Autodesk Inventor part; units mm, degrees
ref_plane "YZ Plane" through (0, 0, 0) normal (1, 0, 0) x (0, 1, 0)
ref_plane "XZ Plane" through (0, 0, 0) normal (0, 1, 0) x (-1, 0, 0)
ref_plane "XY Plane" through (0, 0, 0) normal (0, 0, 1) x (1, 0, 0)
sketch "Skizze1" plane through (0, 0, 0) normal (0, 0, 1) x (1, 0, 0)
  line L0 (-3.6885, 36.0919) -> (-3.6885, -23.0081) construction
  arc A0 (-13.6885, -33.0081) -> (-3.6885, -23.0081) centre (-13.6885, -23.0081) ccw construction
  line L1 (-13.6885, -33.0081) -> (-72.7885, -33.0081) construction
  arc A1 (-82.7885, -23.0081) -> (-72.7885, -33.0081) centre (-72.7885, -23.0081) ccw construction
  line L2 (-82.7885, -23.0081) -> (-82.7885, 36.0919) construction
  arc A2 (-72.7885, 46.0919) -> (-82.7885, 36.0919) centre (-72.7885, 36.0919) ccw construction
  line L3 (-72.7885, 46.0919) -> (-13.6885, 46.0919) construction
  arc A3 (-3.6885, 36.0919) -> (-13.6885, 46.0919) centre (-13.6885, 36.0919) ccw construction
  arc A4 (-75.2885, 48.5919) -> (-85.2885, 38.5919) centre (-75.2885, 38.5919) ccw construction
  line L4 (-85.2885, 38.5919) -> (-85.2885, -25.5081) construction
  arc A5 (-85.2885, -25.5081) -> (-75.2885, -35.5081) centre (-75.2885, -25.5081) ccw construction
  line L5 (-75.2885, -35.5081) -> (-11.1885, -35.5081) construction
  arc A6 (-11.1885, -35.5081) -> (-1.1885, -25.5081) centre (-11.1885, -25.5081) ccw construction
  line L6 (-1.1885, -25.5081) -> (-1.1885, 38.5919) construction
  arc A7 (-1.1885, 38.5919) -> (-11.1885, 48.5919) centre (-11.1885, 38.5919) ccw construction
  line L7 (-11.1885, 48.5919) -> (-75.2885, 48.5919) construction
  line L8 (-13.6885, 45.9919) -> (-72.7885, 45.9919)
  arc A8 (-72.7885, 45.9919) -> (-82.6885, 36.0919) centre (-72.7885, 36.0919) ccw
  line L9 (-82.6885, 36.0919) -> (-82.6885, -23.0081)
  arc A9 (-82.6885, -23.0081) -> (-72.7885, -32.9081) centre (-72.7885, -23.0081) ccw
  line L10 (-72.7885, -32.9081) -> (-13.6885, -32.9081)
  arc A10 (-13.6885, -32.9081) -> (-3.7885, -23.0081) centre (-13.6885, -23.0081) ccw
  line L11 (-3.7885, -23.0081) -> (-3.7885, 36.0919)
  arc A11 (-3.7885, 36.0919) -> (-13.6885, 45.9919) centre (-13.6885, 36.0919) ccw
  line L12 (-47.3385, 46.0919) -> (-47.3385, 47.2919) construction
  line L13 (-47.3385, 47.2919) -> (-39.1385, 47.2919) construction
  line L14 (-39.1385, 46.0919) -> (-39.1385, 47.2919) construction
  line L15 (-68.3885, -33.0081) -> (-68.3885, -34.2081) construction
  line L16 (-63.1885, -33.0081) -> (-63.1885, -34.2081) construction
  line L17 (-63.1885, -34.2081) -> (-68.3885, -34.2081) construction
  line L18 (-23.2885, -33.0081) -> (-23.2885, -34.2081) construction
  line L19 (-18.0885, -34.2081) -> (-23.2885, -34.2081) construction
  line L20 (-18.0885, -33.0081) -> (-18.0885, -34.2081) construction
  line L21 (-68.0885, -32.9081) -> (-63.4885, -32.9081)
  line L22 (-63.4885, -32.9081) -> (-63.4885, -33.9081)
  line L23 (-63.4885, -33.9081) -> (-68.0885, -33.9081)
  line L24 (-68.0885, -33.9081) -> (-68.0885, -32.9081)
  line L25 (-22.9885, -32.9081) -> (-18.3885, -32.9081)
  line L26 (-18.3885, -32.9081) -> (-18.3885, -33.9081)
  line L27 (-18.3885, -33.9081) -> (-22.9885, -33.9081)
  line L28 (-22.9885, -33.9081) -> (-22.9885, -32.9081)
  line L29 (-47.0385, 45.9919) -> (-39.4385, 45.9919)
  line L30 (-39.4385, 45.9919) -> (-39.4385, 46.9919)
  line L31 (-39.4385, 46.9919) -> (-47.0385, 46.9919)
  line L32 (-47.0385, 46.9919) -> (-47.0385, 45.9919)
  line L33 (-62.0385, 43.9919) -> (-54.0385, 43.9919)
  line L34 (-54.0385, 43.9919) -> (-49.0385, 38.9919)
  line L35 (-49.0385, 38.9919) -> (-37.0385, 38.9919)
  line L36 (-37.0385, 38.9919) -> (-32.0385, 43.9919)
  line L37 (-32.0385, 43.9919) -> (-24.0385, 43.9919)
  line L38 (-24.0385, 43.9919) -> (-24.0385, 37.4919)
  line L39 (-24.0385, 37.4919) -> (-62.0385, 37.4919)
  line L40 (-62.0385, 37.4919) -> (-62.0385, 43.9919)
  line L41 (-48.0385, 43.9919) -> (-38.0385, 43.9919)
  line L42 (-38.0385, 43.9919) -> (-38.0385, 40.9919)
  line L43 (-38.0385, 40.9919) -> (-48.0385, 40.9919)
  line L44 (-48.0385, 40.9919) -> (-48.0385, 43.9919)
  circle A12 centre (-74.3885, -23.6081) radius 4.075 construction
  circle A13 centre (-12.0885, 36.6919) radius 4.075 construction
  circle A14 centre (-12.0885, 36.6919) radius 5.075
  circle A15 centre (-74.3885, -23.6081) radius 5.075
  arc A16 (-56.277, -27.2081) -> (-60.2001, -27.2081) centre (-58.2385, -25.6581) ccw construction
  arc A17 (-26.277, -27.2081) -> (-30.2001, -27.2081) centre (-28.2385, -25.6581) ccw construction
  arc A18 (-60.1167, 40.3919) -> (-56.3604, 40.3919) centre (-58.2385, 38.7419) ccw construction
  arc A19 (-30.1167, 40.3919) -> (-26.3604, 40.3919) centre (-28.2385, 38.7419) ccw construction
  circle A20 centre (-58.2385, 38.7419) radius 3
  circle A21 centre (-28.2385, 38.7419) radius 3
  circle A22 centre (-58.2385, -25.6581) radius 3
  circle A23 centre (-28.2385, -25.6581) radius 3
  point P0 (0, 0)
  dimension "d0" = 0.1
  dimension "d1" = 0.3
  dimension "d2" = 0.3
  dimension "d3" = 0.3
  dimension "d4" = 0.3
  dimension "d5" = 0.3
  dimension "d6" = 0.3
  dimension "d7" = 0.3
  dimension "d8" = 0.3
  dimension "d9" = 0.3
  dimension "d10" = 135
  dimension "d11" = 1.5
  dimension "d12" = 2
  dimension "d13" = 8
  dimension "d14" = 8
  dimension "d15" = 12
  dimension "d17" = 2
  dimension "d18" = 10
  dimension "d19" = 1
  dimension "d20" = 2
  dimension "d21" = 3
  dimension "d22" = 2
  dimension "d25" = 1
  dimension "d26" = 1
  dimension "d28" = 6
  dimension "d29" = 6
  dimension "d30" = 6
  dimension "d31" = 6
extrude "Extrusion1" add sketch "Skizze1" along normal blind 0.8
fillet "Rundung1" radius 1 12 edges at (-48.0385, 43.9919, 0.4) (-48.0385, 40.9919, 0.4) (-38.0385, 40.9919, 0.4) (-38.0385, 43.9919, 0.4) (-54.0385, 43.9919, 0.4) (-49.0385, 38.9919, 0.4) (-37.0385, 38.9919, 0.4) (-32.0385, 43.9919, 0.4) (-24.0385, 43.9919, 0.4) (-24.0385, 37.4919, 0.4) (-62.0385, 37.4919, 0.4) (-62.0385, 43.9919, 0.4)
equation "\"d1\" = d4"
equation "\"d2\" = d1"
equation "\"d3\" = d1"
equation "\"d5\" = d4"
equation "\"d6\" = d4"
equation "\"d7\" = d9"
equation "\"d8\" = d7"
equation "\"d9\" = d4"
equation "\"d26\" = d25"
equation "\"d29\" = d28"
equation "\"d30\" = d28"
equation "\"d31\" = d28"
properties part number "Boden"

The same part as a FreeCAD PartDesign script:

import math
import FreeCAD as App
import Part
import Sketcher
from FreeCAD import Vector


def edges_at(feature, points):
    """Names of the edges that pass closest to the given points."""
    edges = feature.Shape.Edges
    near = lambda p: min(range(len(edges)), key=lambda i: edges[i].distToShape(Part.Vertex(*p))[0])
    return sorted({f"Edge{near(p) + 1}" for p in points})


def add_polygon(sketch, points):
    """Adds a closed chain of lines whose ends are joined by coincident constraints."""
    first, n = sketch.GeometryCount, len(points)
    for a, b in zip(points, points[1:] + points[:1]):
        sketch.addGeometry(Part.LineSegment(App.Vector(*a, 0), App.Vector(*b, 0)), False)
    for i in range(n):
        sketch.addConstraint(Sketcher.Constraint("Coincident", first + i, 2, first + (i + 1) % n, 1))

doc = App.newDocument("Part")
params = doc.addObject("Spreadsheet::Sheet", "Params")
for row, (alias, value) in enumerate([
    ("sketch1_diameter", "6 mm"),
    ("sketch1_width", "8 mm"),
    ("sketch1_width2", "12 mm"),
    ("sketch1_width3", "10 mm"),
    ("sketch1_height", "1 mm"),
    ("pad1_length", "0.8 mm"),
    ("fillet_radius", "1 mm"),
], start=1):
    params.set(f"A{row}", alias)
    params.set(f"B{row}", "=" + value)
    params.setAlias(f"B{row}", alias)

body = doc.addObject("PartDesign::Body", "Body")

# Sketch on XY plane
sketch1 = doc.addObject("Sketcher::SketchObject", "Sketch")
body.addObject(sketch1)
sketch1.AttachmentSupport = (doc.XY_Plane, [""])
sketch1.MapMode = "FlatFace"
sketch1.addGeometry(Part.ArcOfCircle(Part.Circle(Vector(-13.7, 36.1, 0), Vector(0, 0, 1), 9.9), math.radians(0), math.radians(90)), False)  # 0
sketch1.addGeometry(Part.LineSegment(Vector(-13.7, 46, 0), Vector(-39.4, 46, 0)), False)  # 1
sketch1.addGeometry(Part.LineSegment(Vector(-39.4, 46, 0), Vector(-39.4, 47, 0)), False)  # 2
sketch1.addGeometry(Part.LineSegment(Vector(-39.4, 47, 0), Vector(-47, 47, 0)), False)  # 3
sketch1.addGeometry(Part.LineSegment(Vector(-47, 47, 0), Vector(-47, 46, 0)), False)  # 4
sketch1.addGeometry(Part.LineSegment(Vector(-47, 46, 0), Vector(-72.8, 46, 0)), False)  # 5
sketch1.addGeometry(Part.ArcOfCircle(Part.Circle(Vector(-72.8, 36.1, 0), Vector(0, 0, 1), 9.9), math.radians(90), math.radians(180)), False)  # 6
sketch1.addGeometry(Part.LineSegment(Vector(-82.7, 36.1, 0), Vector(-82.7, -23, 0)), False)  # 7
sketch1.addGeometry(Part.ArcOfCircle(Part.Circle(Vector(-72.8, -23, 0), Vector(0, 0, 1), 9.9), math.radians(180), math.radians(270)), False)  # 8
sketch1.addGeometry(Part.LineSegment(Vector(-72.8, -32.9, 0), Vector(-68.1, -32.9, 0)), False)  # 9
sketch1.addGeometry(Part.LineSegment(Vector(-68.1, -32.9, 0), Vector(-68.1, -33.9, 0)), False)  # 10
sketch1.addGeometry(Part.LineSegment(Vector(-68.1, -33.9, 0), Vector(-63.5, -33.9, 0)), False)  # 11
sketch1.addGeometry(Part.LineSegment(Vector(-63.5, -33.9, 0), Vector(-63.5, -32.9, 0)), False)  # 12
sketch1.addGeometry(Part.LineSegment(Vector(-63.5, -32.9, 0), Vector(-23, -32.9, 0)), False)  # 13
sketch1.addGeometry(Part.LineSegment(Vector(-23, -32.9, 0), Vector(-23, -33.9, 0)), False)  # 14
sketch1.addGeometry(Part.LineSegment(Vector(-23, -33.9, 0), Vector(-18.4, -33.9, 0)), False)  # 15
sketch1.addGeometry(Part.LineSegment(Vector(-18.4, -33.9, 0), Vector(-18.4, -32.9, 0)), False)  # 16
sketch1.addGeometry(Part.LineSegment(Vector(-18.4, -32.9, 0), Vector(-13.7, -32.9, 0)), False)  # 17
sketch1.addGeometry(Part.ArcOfCircle(Part.Circle(Vector(-13.7, -23, 0), Vector(0, 0, 1), 9.9), math.radians(-90), math.radians(0)), False)  # 18
sketch1.addGeometry(Part.LineSegment(Vector(-3.8, -23, 0), Vector(-3.8, 36.1, 0)), False)  # 19
sketch1.addGeometry(Part.Circle(Vector(-74.4, -23.6, 0), Vector(0, 0, 1), 5.1), False)  # 20
sketch1.addGeometry(Part.Circle(Vector(-58.2, -25.7, 0), Vector(0, 0, 1), 3), False)  # 21
sketch1.addGeometry(Part.Circle(Vector(-28.2, -25.7, 0), Vector(0, 0, 1), 3), False)  # 22
sketch1.addGeometry(Part.LineSegment(Vector(-62, 37.5, 0), Vector(-62, 44, 0)), False)  # 23
sketch1.addGeometry(Part.LineSegment(Vector(-62, 44, 0), Vector(-54, 44, 0)), False)  # 24
sketch1.addGeometry(Part.LineSegment(Vector(-54, 44, 0), Vector(-49, 39, 0)), False)  # 25
sketch1.addGeometry(Part.LineSegment(Vector(-49, 39, 0), Vector(-37, 39, 0)), False)  # 26
sketch1.addGeometry(Part.LineSegment(Vector(-37, 39, 0), Vector(-32, 44, 0)), False)  # 27
sketch1.addGeometry(Part.LineSegment(Vector(-32, 44, 0), Vector(-24, 44, 0)), False)  # 28
sketch1.addGeometry(Part.LineSegment(Vector(-24, 44, 0), Vector(-24, 37.5, 0)), False)  # 29
sketch1.addGeometry(Part.LineSegment(Vector(-24, 37.5, 0), Vector(-25.5, 37.5, 0)), False)  # 30
sketch1.addGeometry(Part.ArcOfCircle(Part.Circle(Vector(-28.2, 38.7, 0), Vector(0, 0, 1), 3), math.radians(-155), math.radians(-25)), False)  # 31
sketch1.addGeometry(Part.LineSegment(Vector(-31, 37.5, 0), Vector(-55.5, 37.5, 0)), False)  # 32
sketch1.addGeometry(Part.ArcOfCircle(Part.Circle(Vector(-58.2, 38.7, 0), Vector(0, 0, 1), 3), math.radians(-155), math.radians(-25)), False)  # 33
sketch1.addGeometry(Part.LineSegment(Vector(-61, 37.5, 0), Vector(-62, 37.5, 0)), False)  # 34
add_polygon(sketch1, [(-48, 41), (-48, 44), (-38, 44), (-38, 41)])  # lines 35-38
sketch1.addGeometry(Part.Circle(Vector(-12.1, 36.7, 0), Vector(0, 0, 1), 5.1), False)  # 39
sketch1.addConstraint(Sketcher.Constraint("Tangent", 0, 2, 1, 1))
sketch1.addConstraint(Sketcher.Constraint("Coincident", 1, 2, 2, 1))
sketch1.addConstraint(Sketcher.Constraint("Coincident", 2, 2, 3, 1))
sketch1.addConstraint(Sketcher.Constraint("Coincident", 3, 2, 4, 1))
sketch1.addConstraint(Sketcher.Constraint("Coincident", 4, 2, 5, 1))
sketch1.addConstraint(Sketcher.Constraint("Tangent", 5, 2, 6, 1))
sketch1.addConstraint(Sketcher.Constraint("Tangent", 6, 2, 7, 1))
sketch1.addConstraint(Sketcher.Constraint("Tangent", 7, 2, 8, 1))
sketch1.addConstraint(Sketcher.Constraint("Tangent", 8, 2, 9, 1))
sketch1.addConstraint(Sketcher.Constraint("Coincident", 9, 2, 10, 1))
sketch1.addConstraint(Sketcher.Constraint("Coincident", 10, 2, 11, 1))
sketch1.addConstraint(Sketcher.Constraint("Coincident", 11, 2, 12, 1))
sketch1.addConstraint(Sketcher.Constraint("Coincident", 12, 2, 13, 1))
sketch1.addConstraint(Sketcher.Constraint("Coincident", 13, 2, 14, 1))
sketch1.addConstraint(Sketcher.Constraint("Coincident", 14, 2, 15, 1))
sketch1.addConstraint(Sketcher.Constraint("Coincident", 15, 2, 16, 1))
sketch1.addConstraint(Sketcher.Constraint("Coincident", 16, 2, 17, 1))
sketch1.addConstraint(Sketcher.Constraint("Tangent", 17, 2, 18, 1))
sketch1.addConstraint(Sketcher.Constraint("Tangent", 18, 2, 19, 1))
sketch1.addConstraint(Sketcher.Constraint("Tangent", 19, 2, 0, 1))
sketch1.addConstraint(Sketcher.Constraint("Coincident", 23, 2, 24, 1))
sketch1.addConstraint(Sketcher.Constraint("Coincident", 24, 2, 25, 1))
sketch1.addConstraint(Sketcher.Constraint("Coincident", 25, 2, 26, 1))
sketch1.addConstraint(Sketcher.Constraint("Coincident", 26, 2, 27, 1))
sketch1.addConstraint(Sketcher.Constraint("Coincident", 27, 2, 28, 1))
sketch1.addConstraint(Sketcher.Constraint("Coincident", 28, 2, 29, 1))
sketch1.addConstraint(Sketcher.Constraint("Coincident", 29, 2, 30, 1))
sketch1.addConstraint(Sketcher.Constraint("Coincident", 30, 2, 31, 2))
sketch1.addConstraint(Sketcher.Constraint("Coincident", 31, 1, 32, 1))
sketch1.addConstraint(Sketcher.Constraint("Coincident", 32, 2, 33, 2))
sketch1.addConstraint(Sketcher.Constraint("Coincident", 33, 1, 34, 1))
sketch1.addConstraint(Sketcher.Constraint("Coincident", 34, 2, 23, 1))
sketch1.addConstraint(Sketcher.Constraint("Horizontal", 1))
sketch1.addConstraint(Sketcher.Constraint("Vertical", 2))
sketch1.addConstraint(Sketcher.Constraint("Horizontal", 3))
sketch1.addConstraint(Sketcher.Constraint("Vertical", 4))
sketch1.addConstraint(Sketcher.Constraint("Horizontal", 5))
sketch1.addConstraint(Sketcher.Constraint("Vertical", 7))
sketch1.addConstraint(Sketcher.Constraint("Horizontal", 9))
sketch1.addConstraint(Sketcher.Constraint("Vertical", 10))
sketch1.addConstraint(Sketcher.Constraint("Horizontal", 11))
sketch1.addConstraint(Sketcher.Constraint("Vertical", 12))
sketch1.addConstraint(Sketcher.Constraint("Horizontal", 13))
sketch1.addConstraint(Sketcher.Constraint("Vertical", 14))
sketch1.addConstraint(Sketcher.Constraint("Horizontal", 15))
sketch1.addConstraint(Sketcher.Constraint("Vertical", 16))
sketch1.addConstraint(Sketcher.Constraint("Horizontal", 17))
sketch1.addConstraint(Sketcher.Constraint("Vertical", 19))
sketch1.addConstraint(Sketcher.Constraint("Vertical", 23))
sketch1.addConstraint(Sketcher.Constraint("Horizontal", 24))
sketch1.addConstraint(Sketcher.Constraint("Horizontal", 26))
sketch1.addConstraint(Sketcher.Constraint("Horizontal", 28))
sketch1.addConstraint(Sketcher.Constraint("Vertical", 29))
sketch1.addConstraint(Sketcher.Constraint("Horizontal", 30))
sketch1.addConstraint(Sketcher.Constraint("Horizontal", 32))
sketch1.addConstraint(Sketcher.Constraint("Horizontal", 34))
sketch1.addConstraint(Sketcher.Constraint("Vertical", 35))
sketch1.addConstraint(Sketcher.Constraint("Horizontal", 36))
sketch1.addConstraint(Sketcher.Constraint("Vertical", 37))
sketch1.addConstraint(Sketcher.Constraint("Horizontal", 38))
sketch1.addConstraint(Sketcher.Constraint("Equal", 0, 6))
sketch1.addConstraint(Sketcher.Constraint("Equal", 6, 8))
sketch1.addConstraint(Sketcher.Constraint("Equal", 8, 18))
sketch1.addConstraint(Sketcher.Constraint("Equal", 21, 22))
sketch1.addConstraint(Sketcher.Constraint("Equal", 22, 31))
sketch1.addConstraint(Sketcher.Constraint("Equal", 31, 33))
sketch1.addConstraint(Sketcher.Constraint("Equal", 20, 39))
sketch1.addConstraint(Sketcher.Constraint("Perpendicular", 25, 27))
sketch1.addConstraint(Sketcher.Constraint("Horizontal", 0, 3, 6, 3))
sketch1.addConstraint(Sketcher.Constraint("Horizontal", 8, 3, 18, 3))
sketch1.addConstraint(Sketcher.Constraint("Horizontal", 21, 3, 22, 3))
sketch1.addConstraint(Sketcher.Constraint("Horizontal", 31, 3, 33, 3))
sketch1.addConstraint(Sketcher.Constraint("Horizontal", 9, 2, 12, 2))
sketch1.addConstraint(Sketcher.Constraint("Horizontal", 11, 2, 14, 2))
sketch1.addConstraint(Sketcher.Constraint("Horizontal", 24, 2, 27, 2))
sketch1.addConstraint(Sketcher.Constraint("Horizontal", 30, 2, 31, 1))
sketch1.addConstraint(Sketcher.Constraint("Horizontal", 32, 2, 33, 1))
sketch1.addConstraint(Sketcher.Constraint("Horizontal", 28, 2, 35, 2))
sketch1.addConstraint(Sketcher.Constraint("Vertical", 22, 3, 31, 3))
sketch1.addConstraint(Sketcher.Constraint("Vertical", 21, 3, 33, 3))
sketch1.addConstraint(Sketcher.Constraint("Equal", 1, 5))
sketch1.addConstraint(Sketcher.Constraint("Equal", 11, 15))
sketch1.addConstraint(Sketcher.Constraint("Equal", 9, 17))
sketch1.addConstraint(Sketcher.Constraint("Equal", 24, 28))
sketch1.addConstraint(Sketcher.Constraint("Equal", 4, 10))
sketch1.addConstraint(Sketcher.Constraint("Equal", 25, 27))
sketch1.addConstraint(Sketcher.Constraint("Diameter", 21, 6.0))
sketch1.addConstraint(Sketcher.Constraint("DistanceX", 24, 1, 24, 2, 8.0))
sketch1.addConstraint(Sketcher.Constraint("DistanceX", 26, 1, 26, 2, 12.0))
sketch1.addConstraint(Sketcher.Constraint("DistanceX", 36, 1, 36, 2, 10.0))
sketch1.addConstraint(Sketcher.Constraint("DistanceY", 2, 1, 2, 2, 1.0))
sketch1.addConstraint(Sketcher.Constraint("DistanceY", 35, 1, 35, 2, 3.0))
sketch1.addConstraint(Sketcher.Constraint("DistanceY", 23, 2, 5, 2, 2.0))
sketch1.addConstraint(Sketcher.Constraint("DistanceX", 25, 2, 4, 2, 2.0))
sketch1.addConstraint(Sketcher.Constraint("DistanceY", 25, 2, 3, 2, 8.0))
sketch1.addConstraint(Sketcher.Constraint("DistanceX", 35, 2, 4, 2, 1.0))
sketch1.addConstraint(Sketcher.Constraint("Radius", 0, 9.9))
sketch1.addConstraint(Sketcher.Constraint("DistanceY", 30, 2, 26, 2, 1.5))
sketch1.addConstraint(Sketcher.Constraint("Diameter", 20, 10.15))
sketch1.addConstraint(Sketcher.Constraint("DistanceX", 3, 2, 3, 1, 7.6))
sketch1.addConstraint(Sketcher.Constraint("DistanceX", 9, 1, 9, 2, 4.7))
sketch1.addConstraint(Sketcher.Constraint("DistanceX", 11, 1, 11, 2, 4.6))
sketch1.addConstraint(Sketcher.Constraint("DistanceX", 13, 1, 13, 2, 40.5))
sketch1.addConstraint(Sketcher.Constraint("DistanceY", 7, 2, 7, 1, 59.1))
sketch1.addConstraint(Sketcher.Constraint("DistanceX", 21, 3, 22, 3, 30.0))
sketch1.addConstraint(Sketcher.Constraint("DistanceX", 20, 3, 8, 3, 1.6))
sketch1.addConstraint(Sketcher.Constraint("DistanceY", 20, 3, 8, 3, 0.6))
sketch1.addConstraint(Sketcher.Constraint("DistanceY", 22, 3, 31, 3, 64.4))
sketch1.addConstraint(Sketcher.Constraint("DistanceX", 0, 3, 39, 3, 1.6))
sketch1.addConstraint(Sketcher.Constraint("DistanceY", 0, 3, 39, 3, 0.6))
sketch1.addConstraint(Sketcher.Constraint("DistanceX", 1, 2, 31, 3, 11.2))
sketch1.addConstraint(Sketcher.Constraint("DistanceY", 21, 3, 8, 3, 2.65))
sketch1.addConstraint(Sketcher.Constraint("DistanceY", -1, 1, 0, 3, 36.092))
sketch1.addConstraint(Sketcher.Constraint("DistanceX", 0, 3, -1, 1, 13.6885))
sketch1.setExpression("Constraints[90]", "Params.sketch1_diameter")
sketch1.setExpression("Constraints[91]", "Params.sketch1_width")
sketch1.setExpression("Constraints[92]", "Params.sketch1_width2")
sketch1.setExpression("Constraints[93]", "Params.sketch1_width3")
sketch1.setExpression("Constraints[94]", "Params.sketch1_height")
pad1 = doc.addObject("PartDesign::Pad", "Pad")
body.addObject(pad1)
pad1.Profile = sketch1
pad1.setExpression("Length", "Params.pad1_length")
doc.recompute()

fillet = doc.addObject("PartDesign::Fillet", "Fillet")
body.addObject(fillet)
fillet.Base = (pad1, edges_at(pad1, [
    (-48.038, 43.992, 0.4),
    (-48.038, 40.992, 0.4),
    (-38.038, 40.992, 0.4),
    (-38.038, 43.992, 0.4),
    (-54.038, 43.992, 0.4),
    (-49.038, 38.992, 0.4),
    (-37.038, 38.992, 0.4),
    (-32.038, 43.992, 0.4),
    (-24.038, 43.992, 0.4),
    (-24.038, 37.492, 0.4),
    (-62.038, 37.492, 0.4),
    (-62.038, 43.992, 0.4),
]))
fillet.setExpression("Radius", "Params.fillet_radius")

doc.recompute()
